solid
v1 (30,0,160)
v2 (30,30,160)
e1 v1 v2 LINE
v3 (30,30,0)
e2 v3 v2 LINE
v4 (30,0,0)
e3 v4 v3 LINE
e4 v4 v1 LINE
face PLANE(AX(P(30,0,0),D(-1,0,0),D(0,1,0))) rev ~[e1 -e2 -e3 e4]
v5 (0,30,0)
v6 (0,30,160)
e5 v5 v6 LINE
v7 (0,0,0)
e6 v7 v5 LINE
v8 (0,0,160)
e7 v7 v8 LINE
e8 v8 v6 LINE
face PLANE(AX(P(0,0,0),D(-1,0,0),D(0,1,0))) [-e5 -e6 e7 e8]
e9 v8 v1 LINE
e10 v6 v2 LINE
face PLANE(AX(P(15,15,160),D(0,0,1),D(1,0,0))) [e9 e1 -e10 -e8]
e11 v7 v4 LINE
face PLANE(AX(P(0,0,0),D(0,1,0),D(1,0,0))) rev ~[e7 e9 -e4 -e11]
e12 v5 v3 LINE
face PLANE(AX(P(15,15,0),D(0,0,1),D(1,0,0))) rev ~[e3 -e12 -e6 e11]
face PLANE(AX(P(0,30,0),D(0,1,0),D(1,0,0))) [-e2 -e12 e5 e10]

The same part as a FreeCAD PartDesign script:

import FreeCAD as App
import Part
import Sketcher

V = App.Vector
Q = App.Units.Quantity

doc = App.newDocument("Part")
body = doc.addObject("PartDesign::Body", "Body")

sketch1 = body.newObject("Sketcher::SketchObject", "Sketch")
sketch1.AttachmentSupport = (doc.getObject("XY_Plane"), [""])
sketch1.MapMode = "FlatFace"
sketch1.addGeometry([
    Part.LineSegment(V(0, 30, 0), V(0, 0, 0)),
    Part.LineSegment(V(0, 0, 0), V(30, 0, 0)),
    Part.LineSegment(V(30, 0, 0), V(30, 30, 0)),
    Part.LineSegment(V(30, 30, 0), V(0, 30, 0)),
], False)
sketch1.addConstraint([
    Sketcher.Constraint("Coincident", 0, 2, 1, 1),
    Sketcher.Constraint("Coincident", 1, 2, 2, 1),
    Sketcher.Constraint("Coincident", 2, 2, 3, 1),
    Sketcher.Constraint("Coincident", 3, 2, 0, 1),
    Sketcher.Constraint("Vertical", 0),
    Sketcher.Constraint("Horizontal", 1),
    Sketcher.Constraint("Vertical", 2),
    Sketcher.Constraint("Horizontal", 3),
    Sketcher.Constraint("Coincident", 0, 2, -1, 1),
    Sketcher.Constraint("Equal", 3, 0),
    Sketcher.Constraint("DistanceX", 1, 1, 1, 2, Q("30 mm")),
])
pad1 = body.newObject("PartDesign::Pad", "Pad")
pad1.Profile = sketch1
pad1.Length = 160

doc.recompute()
